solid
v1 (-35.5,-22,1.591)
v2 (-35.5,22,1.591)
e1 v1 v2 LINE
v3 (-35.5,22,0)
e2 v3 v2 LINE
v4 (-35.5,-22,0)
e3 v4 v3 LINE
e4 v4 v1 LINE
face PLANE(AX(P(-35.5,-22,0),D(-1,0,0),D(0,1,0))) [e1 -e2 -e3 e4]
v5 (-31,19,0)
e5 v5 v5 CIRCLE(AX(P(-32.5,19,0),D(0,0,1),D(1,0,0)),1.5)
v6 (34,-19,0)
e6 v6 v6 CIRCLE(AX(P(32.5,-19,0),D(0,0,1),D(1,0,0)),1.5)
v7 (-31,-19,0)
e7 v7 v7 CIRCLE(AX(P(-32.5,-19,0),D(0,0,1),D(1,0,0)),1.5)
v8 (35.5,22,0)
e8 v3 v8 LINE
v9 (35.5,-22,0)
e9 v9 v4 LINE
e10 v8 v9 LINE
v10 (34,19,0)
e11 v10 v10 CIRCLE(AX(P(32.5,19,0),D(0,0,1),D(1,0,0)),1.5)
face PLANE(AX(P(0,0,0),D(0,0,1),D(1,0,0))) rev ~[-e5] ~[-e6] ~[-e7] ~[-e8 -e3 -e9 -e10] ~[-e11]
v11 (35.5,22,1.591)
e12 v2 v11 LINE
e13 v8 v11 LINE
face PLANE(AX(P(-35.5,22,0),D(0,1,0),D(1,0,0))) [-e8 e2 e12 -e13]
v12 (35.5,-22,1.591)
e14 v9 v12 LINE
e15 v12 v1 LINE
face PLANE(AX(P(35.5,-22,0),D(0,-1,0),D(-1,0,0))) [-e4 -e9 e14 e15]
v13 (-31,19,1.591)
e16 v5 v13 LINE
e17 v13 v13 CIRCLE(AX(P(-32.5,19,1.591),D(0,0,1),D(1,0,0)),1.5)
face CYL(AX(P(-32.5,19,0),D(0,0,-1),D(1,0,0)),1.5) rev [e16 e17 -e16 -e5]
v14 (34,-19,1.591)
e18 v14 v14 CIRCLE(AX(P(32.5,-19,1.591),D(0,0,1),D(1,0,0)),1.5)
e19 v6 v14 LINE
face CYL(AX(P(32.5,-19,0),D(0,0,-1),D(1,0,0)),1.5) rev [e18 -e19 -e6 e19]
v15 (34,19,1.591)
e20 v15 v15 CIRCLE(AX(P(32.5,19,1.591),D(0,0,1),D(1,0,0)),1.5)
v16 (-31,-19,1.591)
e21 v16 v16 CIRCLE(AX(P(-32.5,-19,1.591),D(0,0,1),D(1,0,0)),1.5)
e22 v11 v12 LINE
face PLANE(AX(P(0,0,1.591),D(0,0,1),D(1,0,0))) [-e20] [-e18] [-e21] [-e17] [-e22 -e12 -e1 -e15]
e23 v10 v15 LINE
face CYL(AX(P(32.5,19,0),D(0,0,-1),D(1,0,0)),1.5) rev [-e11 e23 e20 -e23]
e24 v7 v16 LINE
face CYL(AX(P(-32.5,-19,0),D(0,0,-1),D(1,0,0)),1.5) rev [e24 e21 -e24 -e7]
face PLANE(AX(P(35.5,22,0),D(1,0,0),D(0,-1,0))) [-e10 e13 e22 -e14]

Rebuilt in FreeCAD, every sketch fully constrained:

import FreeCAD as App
import Part
import Sketcher
from FreeCAD import Vector

doc = App.newDocument("Part")
body = doc.addObject("PartDesign::Body", "Body")

# Sketch on XY plane
sketch1 = doc.addObject("Sketcher::SketchObject", "Sketch")
body.addObject(sketch1)
sketch1.AttachmentSupport = (doc.XY_Plane, [""])
sketch1.MapMode = "FlatFace"
sketch1.addGeometry([
    Part.LineSegment(Vector(35.5, 22, 0), Vector(-35.5, 22, 0)),  # 0
    Part.LineSegment(Vector(-35.5, 22, 0), Vector(-35.5, -22, 0)),  # 1
    Part.LineSegment(Vector(-35.5, -22, 0), Vector(35.5, -22, 0)),  # 2
    Part.LineSegment(Vector(35.5, -22, 0), Vector(35.5, 22, 0)),  # 3
    Part.Circle(Vector(-32.5, -19, 0), Vector(0, 0, 1), 1.5),  # 4
    Part.Circle(Vector(32.5, -19, 0), Vector(0, 0, 1), 1.5),  # 5
    Part.Circle(Vector(-32.5, 19, 0), Vector(0, 0, 1), 1.5),  # 6
    Part.Circle(Vector(32.5, 19, 0), Vector(0, 0, 1), 1.5),  # 7
], False)
sketch1.addConstraint([
    Sketcher.Constraint("Coincident", 0, 2, 1, 1),
    Sketcher.Constraint("Coincident", 1, 2, 2, 1),
    Sketcher.Constraint("Coincident", 2, 2, 3, 1),
    Sketcher.Constraint("Coincident", 3, 2, 0, 1),
    Sketcher.Constraint("Horizontal", 0),
    Sketcher.Constraint("Vertical", 1),
    Sketcher.Constraint("Horizontal", 2),
    Sketcher.Constraint("Vertical", 3),
    Sketcher.Constraint("Equal", 4, 5),
    Sketcher.Constraint("Equal", 5, 6),
    Sketcher.Constraint("Equal", 6, 7),
    Sketcher.Constraint("Symmetric", 5, 3, 6, 3, -1, 1),
    Sketcher.Constraint("Symmetric", 4, 3, 7, 3, -1, 1),
    Sketcher.Constraint("Symmetric", 0, 2, 2, 2, -1, 1),
    Sketcher.Constraint("Symmetric", 4, 3, 5, 3, -2),
    Sketcher.Constraint("Diameter", 4, 3.0),
    Sketcher.Constraint("DistanceX", 0, 2, 0, 1, 71.0),
    Sketcher.Constraint("DistanceY", 1, 2, 1, 1, 44.0),
    Sketcher.Constraint("DistanceX", 4, 3, 5, 3, 65.0),
    Sketcher.Constraint("DistanceY", 4, 3, 6, 3, 38.0),
])
pad1 = doc.addObject("PartDesign::Pad", "Pad")
body.addObject(pad1)
pad1.Profile = sketch1
pad1.Length = 1.591

doc.recompute()
